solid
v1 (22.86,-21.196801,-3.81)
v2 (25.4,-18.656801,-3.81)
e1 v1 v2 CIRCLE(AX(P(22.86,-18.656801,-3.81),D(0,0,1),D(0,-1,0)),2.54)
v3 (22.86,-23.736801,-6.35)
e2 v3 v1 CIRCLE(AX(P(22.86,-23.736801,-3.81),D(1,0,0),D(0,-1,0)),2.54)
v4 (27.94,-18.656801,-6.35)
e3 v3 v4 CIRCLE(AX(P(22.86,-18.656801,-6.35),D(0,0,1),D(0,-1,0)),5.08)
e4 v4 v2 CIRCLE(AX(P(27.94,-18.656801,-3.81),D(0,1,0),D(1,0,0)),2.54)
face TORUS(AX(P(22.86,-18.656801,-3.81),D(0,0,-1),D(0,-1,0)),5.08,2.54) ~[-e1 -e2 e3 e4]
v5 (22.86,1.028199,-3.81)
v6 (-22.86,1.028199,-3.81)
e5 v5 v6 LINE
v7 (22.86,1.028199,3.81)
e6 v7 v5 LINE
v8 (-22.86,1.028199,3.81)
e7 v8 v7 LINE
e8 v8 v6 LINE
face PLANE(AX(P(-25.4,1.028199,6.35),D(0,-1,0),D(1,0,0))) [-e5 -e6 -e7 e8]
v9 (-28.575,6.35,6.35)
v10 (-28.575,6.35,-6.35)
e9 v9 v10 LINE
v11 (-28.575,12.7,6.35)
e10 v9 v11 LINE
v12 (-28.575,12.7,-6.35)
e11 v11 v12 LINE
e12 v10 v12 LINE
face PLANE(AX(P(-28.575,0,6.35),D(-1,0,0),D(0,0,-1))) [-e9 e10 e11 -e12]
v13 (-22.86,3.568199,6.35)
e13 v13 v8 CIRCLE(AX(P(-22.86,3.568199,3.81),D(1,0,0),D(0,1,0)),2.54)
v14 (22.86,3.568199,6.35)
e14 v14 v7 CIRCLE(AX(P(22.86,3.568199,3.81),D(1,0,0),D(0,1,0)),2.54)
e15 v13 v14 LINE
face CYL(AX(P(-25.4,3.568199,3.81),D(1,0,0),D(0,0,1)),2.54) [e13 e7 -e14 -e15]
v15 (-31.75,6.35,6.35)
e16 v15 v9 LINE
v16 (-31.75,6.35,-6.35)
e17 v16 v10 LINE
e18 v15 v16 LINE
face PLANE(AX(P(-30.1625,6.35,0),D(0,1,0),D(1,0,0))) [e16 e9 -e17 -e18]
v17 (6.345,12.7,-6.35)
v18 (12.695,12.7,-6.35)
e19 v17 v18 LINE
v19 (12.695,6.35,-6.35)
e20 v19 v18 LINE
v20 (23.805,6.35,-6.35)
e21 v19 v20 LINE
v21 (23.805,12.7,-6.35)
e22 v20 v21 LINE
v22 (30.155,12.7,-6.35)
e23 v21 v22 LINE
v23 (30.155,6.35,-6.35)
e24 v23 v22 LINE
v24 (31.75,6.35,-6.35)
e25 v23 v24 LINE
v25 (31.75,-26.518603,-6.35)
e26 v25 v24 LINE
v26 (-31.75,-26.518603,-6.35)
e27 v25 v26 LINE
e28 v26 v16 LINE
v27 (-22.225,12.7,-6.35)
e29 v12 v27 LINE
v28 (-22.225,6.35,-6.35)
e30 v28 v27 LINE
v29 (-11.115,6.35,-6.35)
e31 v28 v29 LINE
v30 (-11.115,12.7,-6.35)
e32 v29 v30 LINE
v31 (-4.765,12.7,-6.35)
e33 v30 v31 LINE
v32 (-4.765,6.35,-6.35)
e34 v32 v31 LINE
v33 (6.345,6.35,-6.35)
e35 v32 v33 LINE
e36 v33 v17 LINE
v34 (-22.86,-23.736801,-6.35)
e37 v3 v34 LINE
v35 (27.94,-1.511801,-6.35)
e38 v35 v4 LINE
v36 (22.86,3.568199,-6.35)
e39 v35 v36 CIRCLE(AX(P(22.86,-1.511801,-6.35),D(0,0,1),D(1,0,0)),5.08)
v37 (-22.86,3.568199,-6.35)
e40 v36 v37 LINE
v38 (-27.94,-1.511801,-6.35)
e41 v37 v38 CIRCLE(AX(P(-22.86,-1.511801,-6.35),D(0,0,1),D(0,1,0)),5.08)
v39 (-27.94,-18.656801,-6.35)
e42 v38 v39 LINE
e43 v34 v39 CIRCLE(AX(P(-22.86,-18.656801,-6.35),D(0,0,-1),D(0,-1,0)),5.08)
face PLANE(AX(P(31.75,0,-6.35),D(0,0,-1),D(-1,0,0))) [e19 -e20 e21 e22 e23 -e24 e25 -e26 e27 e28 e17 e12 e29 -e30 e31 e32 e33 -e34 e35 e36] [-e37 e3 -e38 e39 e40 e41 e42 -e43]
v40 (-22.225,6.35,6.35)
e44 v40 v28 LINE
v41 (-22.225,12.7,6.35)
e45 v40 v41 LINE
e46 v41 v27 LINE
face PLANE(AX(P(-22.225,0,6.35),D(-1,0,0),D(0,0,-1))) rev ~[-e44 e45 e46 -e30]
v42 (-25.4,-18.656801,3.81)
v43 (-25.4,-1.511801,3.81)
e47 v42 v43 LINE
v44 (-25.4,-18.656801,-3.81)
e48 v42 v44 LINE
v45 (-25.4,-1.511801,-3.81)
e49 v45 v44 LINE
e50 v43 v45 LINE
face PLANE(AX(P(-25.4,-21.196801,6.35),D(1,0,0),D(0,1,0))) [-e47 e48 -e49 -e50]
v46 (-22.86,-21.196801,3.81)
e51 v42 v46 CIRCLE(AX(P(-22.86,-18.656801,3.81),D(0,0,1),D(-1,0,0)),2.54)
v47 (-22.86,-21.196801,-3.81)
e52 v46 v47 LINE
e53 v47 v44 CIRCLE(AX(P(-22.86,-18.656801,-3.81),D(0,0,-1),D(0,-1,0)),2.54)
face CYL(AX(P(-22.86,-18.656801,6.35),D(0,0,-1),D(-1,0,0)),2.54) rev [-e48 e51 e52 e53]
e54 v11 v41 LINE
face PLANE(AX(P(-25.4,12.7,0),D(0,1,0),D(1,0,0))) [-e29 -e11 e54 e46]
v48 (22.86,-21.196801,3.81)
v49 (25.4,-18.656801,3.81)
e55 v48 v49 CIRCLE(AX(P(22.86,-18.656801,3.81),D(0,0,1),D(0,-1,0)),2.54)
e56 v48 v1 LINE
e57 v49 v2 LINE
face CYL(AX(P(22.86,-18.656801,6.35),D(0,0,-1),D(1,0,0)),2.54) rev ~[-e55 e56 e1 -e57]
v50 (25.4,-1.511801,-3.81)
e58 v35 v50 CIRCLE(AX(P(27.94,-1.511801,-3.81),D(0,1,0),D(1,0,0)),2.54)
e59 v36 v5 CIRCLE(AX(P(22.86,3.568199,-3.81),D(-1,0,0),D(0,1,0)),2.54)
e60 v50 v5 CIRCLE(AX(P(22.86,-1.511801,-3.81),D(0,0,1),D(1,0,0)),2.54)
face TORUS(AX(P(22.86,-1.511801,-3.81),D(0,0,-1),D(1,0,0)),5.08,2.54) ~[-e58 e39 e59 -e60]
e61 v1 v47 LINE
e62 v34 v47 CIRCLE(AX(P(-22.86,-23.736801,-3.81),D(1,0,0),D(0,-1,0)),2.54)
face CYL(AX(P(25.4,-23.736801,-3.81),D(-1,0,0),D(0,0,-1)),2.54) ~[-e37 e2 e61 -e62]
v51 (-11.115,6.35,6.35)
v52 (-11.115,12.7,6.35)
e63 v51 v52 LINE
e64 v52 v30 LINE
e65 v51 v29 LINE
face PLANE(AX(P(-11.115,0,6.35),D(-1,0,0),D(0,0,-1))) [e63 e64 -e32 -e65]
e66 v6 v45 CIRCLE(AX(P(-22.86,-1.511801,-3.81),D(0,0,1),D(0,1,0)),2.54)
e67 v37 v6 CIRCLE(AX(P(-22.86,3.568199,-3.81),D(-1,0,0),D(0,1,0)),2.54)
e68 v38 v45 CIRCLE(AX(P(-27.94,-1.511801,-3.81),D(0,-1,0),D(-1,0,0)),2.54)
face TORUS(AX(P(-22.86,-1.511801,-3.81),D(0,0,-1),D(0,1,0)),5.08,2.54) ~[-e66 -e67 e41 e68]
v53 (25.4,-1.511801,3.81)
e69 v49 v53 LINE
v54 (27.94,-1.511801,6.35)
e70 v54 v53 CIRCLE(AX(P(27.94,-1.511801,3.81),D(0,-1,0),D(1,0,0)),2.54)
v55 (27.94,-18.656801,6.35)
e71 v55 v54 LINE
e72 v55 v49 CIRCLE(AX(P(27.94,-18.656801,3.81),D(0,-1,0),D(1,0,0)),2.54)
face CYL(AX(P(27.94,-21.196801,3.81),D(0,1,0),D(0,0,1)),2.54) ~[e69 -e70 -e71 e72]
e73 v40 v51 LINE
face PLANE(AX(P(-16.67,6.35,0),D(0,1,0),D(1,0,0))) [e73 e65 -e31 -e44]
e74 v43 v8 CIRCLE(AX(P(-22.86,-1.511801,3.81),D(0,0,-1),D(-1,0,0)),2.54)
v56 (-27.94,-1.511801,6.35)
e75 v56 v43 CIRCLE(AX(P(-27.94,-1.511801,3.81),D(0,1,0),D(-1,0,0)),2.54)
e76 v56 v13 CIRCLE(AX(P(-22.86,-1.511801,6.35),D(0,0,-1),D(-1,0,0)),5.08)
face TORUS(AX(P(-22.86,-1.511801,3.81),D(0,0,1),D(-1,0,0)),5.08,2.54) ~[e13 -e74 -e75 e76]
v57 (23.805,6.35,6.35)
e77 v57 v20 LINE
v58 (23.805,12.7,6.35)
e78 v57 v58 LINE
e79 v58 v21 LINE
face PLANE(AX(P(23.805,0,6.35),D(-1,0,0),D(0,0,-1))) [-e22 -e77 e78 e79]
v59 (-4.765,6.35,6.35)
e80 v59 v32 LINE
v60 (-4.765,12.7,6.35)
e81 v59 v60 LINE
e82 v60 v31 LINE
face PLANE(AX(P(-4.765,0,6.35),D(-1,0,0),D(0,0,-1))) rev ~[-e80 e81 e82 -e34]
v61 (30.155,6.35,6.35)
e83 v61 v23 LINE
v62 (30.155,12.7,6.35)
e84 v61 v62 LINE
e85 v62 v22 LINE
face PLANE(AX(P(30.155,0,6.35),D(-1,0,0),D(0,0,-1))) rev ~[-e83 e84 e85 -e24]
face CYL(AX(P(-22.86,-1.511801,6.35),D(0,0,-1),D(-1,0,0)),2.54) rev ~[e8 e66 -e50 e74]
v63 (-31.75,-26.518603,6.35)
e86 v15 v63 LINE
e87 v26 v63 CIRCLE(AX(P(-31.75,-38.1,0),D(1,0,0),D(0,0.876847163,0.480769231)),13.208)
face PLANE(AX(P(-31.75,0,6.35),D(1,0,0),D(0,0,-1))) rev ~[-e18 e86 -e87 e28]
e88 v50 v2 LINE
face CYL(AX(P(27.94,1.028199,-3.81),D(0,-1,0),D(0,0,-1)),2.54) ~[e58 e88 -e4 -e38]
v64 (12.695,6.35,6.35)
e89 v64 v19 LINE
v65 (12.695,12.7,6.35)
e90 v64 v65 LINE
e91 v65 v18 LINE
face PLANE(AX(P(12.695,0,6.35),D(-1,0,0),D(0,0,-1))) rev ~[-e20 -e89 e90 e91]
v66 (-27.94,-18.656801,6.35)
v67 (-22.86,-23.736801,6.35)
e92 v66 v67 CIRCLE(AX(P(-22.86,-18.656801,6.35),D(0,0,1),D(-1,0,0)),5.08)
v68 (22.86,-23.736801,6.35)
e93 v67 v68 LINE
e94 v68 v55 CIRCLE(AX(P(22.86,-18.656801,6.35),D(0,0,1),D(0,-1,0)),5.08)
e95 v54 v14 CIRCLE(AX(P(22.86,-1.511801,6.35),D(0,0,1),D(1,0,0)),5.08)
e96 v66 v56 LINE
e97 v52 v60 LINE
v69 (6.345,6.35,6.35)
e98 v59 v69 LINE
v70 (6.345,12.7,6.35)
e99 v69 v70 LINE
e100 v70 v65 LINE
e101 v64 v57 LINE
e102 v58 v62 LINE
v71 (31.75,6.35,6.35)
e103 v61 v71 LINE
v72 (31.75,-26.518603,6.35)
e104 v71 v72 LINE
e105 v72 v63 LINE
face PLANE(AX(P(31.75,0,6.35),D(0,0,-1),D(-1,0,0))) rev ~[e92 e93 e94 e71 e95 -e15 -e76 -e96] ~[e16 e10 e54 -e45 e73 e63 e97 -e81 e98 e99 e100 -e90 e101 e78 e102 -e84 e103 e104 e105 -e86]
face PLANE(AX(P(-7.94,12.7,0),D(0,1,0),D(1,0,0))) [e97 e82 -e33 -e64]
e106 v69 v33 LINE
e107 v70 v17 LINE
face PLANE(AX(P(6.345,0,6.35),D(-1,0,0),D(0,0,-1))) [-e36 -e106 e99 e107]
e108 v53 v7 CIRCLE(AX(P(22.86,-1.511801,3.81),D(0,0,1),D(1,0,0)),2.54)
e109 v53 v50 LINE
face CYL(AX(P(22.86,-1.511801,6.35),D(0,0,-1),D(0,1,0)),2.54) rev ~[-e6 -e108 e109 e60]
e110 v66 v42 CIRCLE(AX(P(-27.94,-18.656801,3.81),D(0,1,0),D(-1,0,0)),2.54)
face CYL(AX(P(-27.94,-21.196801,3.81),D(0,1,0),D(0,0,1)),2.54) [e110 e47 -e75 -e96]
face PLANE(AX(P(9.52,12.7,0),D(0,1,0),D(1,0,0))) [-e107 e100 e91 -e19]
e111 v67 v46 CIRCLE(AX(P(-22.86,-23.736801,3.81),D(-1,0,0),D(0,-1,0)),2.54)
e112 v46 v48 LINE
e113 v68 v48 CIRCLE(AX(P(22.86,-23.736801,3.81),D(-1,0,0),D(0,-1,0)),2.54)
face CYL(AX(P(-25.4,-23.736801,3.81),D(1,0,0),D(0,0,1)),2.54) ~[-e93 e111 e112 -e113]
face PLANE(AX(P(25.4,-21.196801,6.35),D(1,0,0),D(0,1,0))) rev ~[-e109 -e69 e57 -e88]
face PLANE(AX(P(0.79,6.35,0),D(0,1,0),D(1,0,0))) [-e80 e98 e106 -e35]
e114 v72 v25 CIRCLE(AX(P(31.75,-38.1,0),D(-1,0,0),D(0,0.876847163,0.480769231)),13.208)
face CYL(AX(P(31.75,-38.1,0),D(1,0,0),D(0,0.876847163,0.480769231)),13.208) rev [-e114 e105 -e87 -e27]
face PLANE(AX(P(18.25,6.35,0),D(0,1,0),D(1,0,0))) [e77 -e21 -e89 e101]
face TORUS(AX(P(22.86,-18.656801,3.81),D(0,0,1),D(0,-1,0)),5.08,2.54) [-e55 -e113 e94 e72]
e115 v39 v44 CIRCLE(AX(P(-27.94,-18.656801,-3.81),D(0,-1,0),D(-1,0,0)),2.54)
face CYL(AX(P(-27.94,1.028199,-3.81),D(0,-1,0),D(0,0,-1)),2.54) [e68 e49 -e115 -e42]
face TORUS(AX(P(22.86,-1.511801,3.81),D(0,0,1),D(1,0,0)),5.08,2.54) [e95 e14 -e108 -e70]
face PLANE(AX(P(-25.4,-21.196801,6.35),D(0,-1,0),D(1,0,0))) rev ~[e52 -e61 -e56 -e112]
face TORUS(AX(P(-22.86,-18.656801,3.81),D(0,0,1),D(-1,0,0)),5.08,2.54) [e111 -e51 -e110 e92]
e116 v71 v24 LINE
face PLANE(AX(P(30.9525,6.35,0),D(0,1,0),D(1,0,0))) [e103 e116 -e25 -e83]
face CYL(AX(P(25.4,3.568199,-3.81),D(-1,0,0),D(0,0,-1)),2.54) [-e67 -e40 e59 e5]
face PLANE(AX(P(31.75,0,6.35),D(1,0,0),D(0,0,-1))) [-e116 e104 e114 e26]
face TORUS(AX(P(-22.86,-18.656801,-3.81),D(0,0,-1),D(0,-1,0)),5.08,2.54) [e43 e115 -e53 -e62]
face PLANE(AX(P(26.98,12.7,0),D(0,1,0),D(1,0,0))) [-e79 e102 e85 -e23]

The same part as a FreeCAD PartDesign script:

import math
import FreeCAD as App
import Part
import Sketcher
from FreeCAD import Vector
Q = App.Units.Quantity


def edges_at(feature, points):
    """Names of the edges that pass closest to the given points."""
    edges = feature.Shape.Edges
    near = lambda p: min(range(len(edges)), key=lambda i: edges[i].distToShape(Part.Vertex(*p))[0])
    return sorted({f"Edge{near(p) + 1}" for p in points})


def add_polygon(sketch, points):
    """Adds a closed chain of lines whose ends are joined by coincident constraints."""
    first, n = sketch.GeometryCount, len(points)
    for a, b in zip(points, points[1:] + points[:1]):
        sketch.addGeometry(Part.LineSegment(App.Vector(*a, 0), App.Vector(*b, 0)), False)
    for i in range(n):
        sketch.addConstraint(Sketcher.Constraint("Coincident", first + i, 2, first + (i + 1) % n, 1))

doc = App.newDocument("Part")
body = doc.addObject("PartDesign::Body", "Body")

# Sketch on XZ plane
sketch1 = body.newObject("Sketcher::SketchObject", "Sketch")
sketch1.AttachmentSupport = (doc.getObject("XZ_Plane"), [""])
sketch1.MapMode = "FlatFace"
add_polygon(sketch1, [(-31.8, -6.3), (-31.8, 6.3), (-28.6, 6.3), (-28.6, -6.3)])  # lines 0-3
sketch1.addConstraint(Sketcher.Constraint("Vertical", 0))
sketch1.addConstraint(Sketcher.Constraint("Horizontal", 1))
sketch1.addConstraint(Sketcher.Constraint("Vertical", 2))
sketch1.addConstraint(Sketcher.Constraint("Horizontal", 3))
sketch1.addConstraint(Sketcher.Constraint("DistanceY", 0, 1, 0, 2, Q("0.5 in")))
sketch1.addConstraint(Sketcher.Constraint("DistanceX", 1, 1, 1, 2, Q("0.125 in")))
sketch1.addConstraint(Sketcher.Constraint("DistanceX", 0, 2, -1, 1, Q("1.25 in")))
sketch1.addConstraint(Sketcher.Constraint("DistanceY", -1, 1, 0, 2, Q("0.25 in")))
pad1 = body.newObject("PartDesign::Pad", "Pad")
pad1.Profile = sketch1
pad1.Length = Q("0.25 in")
pad1.Reversed = True
body2 = doc.addObject("PartDesign::Body", "Body001")

# Sketch on XZ plane
sketch2 = body2.newObject("Sketcher::SketchObject", "Sketch001")
sketch2.AttachmentSupport = (doc.getObject("XZ_Plane001"), [""])
sketch2.MapMode = "FlatFace"
add_polygon(sketch2, [(-22, -6), (-22, 6), (-11, 6), (-11, -6)])  # lines 0-3
sketch2.addConstraint(Sketcher.Constraint("Vertical", 0))
sketch2.addConstraint(Sketcher.Constraint("Horizontal", 1))
sketch2.addConstraint(Sketcher.Constraint("Vertical", 2))
sketch2.addConstraint(Sketcher.Constraint("Horizontal", 3))
sketch2.addConstraint(Sketcher.Constraint("DistanceY", 0, 1, 0, 2, Q("0.5 in")))
sketch2.addConstraint(Sketcher.Constraint("DistanceY", -1, 1, 0, 2, Q("0.25 in")))
sketch2.addConstraint(Sketcher.Constraint("DistanceX", 0, 2, -1, 1, Q("0.875 in")))
sketch2.addConstraint(Sketcher.Constraint("DistanceX", 1, 1, 1, 2, 11.11))
pad2 = body2.newObject("PartDesign::Pad", "Pad001")
pad2.Profile = sketch2
pad2.Length = Q("0.25 in")
pad2.Reversed = True
body3 = doc.addObject("PartDesign::Body", "Body002")

# Sketch on XZ plane
sketch3 = body3.newObject("Sketcher::SketchObject", "Sketch002")
sketch3.AttachmentSupport = (doc.getObject("XZ_Plane002"), [""])
sketch3.MapMode = "FlatFace"
add_polygon(sketch3, [(-5, -6), (-5, 6), (6, 6), (6, -6)])  # lines 0-3
sketch3.addConstraint(Sketcher.Constraint("Vertical", 0))
sketch3.addConstraint(Sketcher.Constraint("Horizontal", 1))
sketch3.addConstraint(Sketcher.Constraint("Vertical", 2))
sketch3.addConstraint(Sketcher.Constraint("Horizontal", 3))
sketch3.addConstraint(Sketcher.Constraint("DistanceY", 0, 1, 0, 2, Q("0.5 in")))
sketch3.addConstraint(Sketcher.Constraint("DistanceY", -1, 1, 0, 2, Q("0.25 in")))
sketch3.addConstraint(Sketcher.Constraint("DistanceX", 1, 1, 1, 2, 11.11))
sketch3.addConstraint(Sketcher.Constraint("DistanceX", 0, 2, -1, 1, 4.765))
pad3 = body3.newObject("PartDesign::Pad", "Pad002")
pad3.Profile = sketch3
pad3.Length = Q("0.25 in")
pad3.Reversed = True
body4 = doc.addObject("PartDesign::Body", "Body003")

# Sketch on XZ plane
sketch4 = body4.newObject("Sketcher::SketchObject", "Sketch003")
sketch4.AttachmentSupport = (doc.getObject("XZ_Plane003"), [""])
sketch4.MapMode = "FlatFace"
add_polygon(sketch4, [(13, -6), (13, 6), (24, 6), (24, -6)])  # lines 0-3
sketch4.addConstraint(Sketcher.Constraint("Vertical", 0))
sketch4.addConstraint(Sketcher.Constraint("Horizontal", 1))
sketch4.addConstraint(Sketcher.Constraint("Vertical", 2))
sketch4.addConstraint(Sketcher.Constraint("Horizontal", 3))
sketch4.addConstraint(Sketcher.Constraint("DistanceY", 0, 1, 0, 2, Q("0.5 in")))
sketch4.addConstraint(Sketcher.Constraint("DistanceY", -1, 1, 0, 2, Q("0.25 in")))
sketch4.addConstraint(Sketcher.Constraint("DistanceX", 1, 1, 1, 2, 11.11))
sketch4.addConstraint(Sketcher.Constraint("DistanceX", -1, 1, 0, 2, 12.695))
pad4 = body4.newObject("PartDesign::Pad", "Pad003")
pad4.Profile = sketch4
pad4.Length = Q("0.25 in")
pad4.Reversed = True
body5 = doc.addObject("PartDesign::Body", "Body004")

# Sketch on XZ plane
sketch5 = body5.newObject("Sketcher::SketchObject", "Sketch004")
sketch5.AttachmentSupport = (doc.getObject("XZ_Plane004"), [""])
sketch5.MapMode = "FlatFace"
add_polygon(sketch5, [(30.2, -6.3), (30.2, 6.3), (31.8, 6.3), (31.8, -6.3)])  # lines 0-3
sketch5.addConstraint(Sketcher.Constraint("Vertical", 0))
sketch5.addConstraint(Sketcher.Constraint("Horizontal", 1))
sketch5.addConstraint(Sketcher.Constraint("Vertical", 2))
sketch5.addConstraint(Sketcher.Constraint("Horizontal", 3))
sketch5.addConstraint(Sketcher.Constraint("DistanceY", 0, 1, 0, 2, Q("0.5 in")))
sketch5.addConstraint(Sketcher.Constraint("DistanceY", -1, 1, 0, 2, Q("0.25 in")))
sketch5.addConstraint(Sketcher.Constraint("DistanceX", -1, 1, 1, 2, Q("1.25 in")))
sketch5.addConstraint(Sketcher.Constraint("DistanceX", 1, 1, 1, 2, 1.595))
pad5 = body5.newObject("PartDesign::Pad", "Pad004")
pad5.Profile = sketch5
pad5.Length = Q("0.25 in")
pad5.Reversed = True
body.AllowCompound = True
doc.recompute()

boolean = body.newObject("PartDesign::Boolean", "Boolean")
boolean.Type = "Fuse"
boolean.addObjects([body2])
doc.recompute()

boolean2 = body.newObject("PartDesign::Boolean", "Boolean001")
boolean2.Type = "Fuse"
boolean2.addObjects([body3])
doc.recompute()

boolean3 = body.newObject("PartDesign::Boolean", "Boolean002")
boolean3.Type = "Fuse"
boolean3.addObjects([body4])
doc.recompute()

boolean4 = body.newObject("PartDesign::Boolean", "Boolean003")
boolean4.Type = "Fuse"
boolean4.addObjects([body5])

# Sketch on XZ plane
sketch6 = body.newObject("Sketcher::SketchObject", "Sketch005")
sketch6.AttachmentSupport = (doc.getObject("XZ_Plane"), [""])
sketch6.MapMode = "FlatFace"
add_polygon(sketch6, [(-29, -6), (-29, 6), (-22, 6), (-22, -6)])  # lines 0-3
add_polygon(sketch6, [(-11, -6), (-11, 6), (-5, 6), (-5, -6)])  # lines 4-7
add_polygon(sketch6, [(6, -6), (6, 6), (13, 6), (13, -6)])  # lines 8-11
add_polygon(sketch6, [(24, -6), (24, 6), (30, 6), (30, -6)])  # lines 12-15
sketch6.addConstraint(Sketcher.Constraint("Vertical", 0))
sketch6.addConstraint(Sketcher.Constraint("Horizontal", 1))
sketch6.addConstraint(Sketcher.Constraint("Vertical", 2))
sketch6.addConstraint(Sketcher.Constraint("Horizontal", 3))
sketch6.addConstraint(Sketcher.Constraint("Vertical", 4))
sketch6.addConstraint(Sketcher.Constraint("Horizontal", 5))
sketch6.addConstraint(Sketcher.Constraint("Vertical", 6))
sketch6.addConstraint(Sketcher.Constraint("Horizontal", 7))
sketch6.addConstraint(Sketcher.Constraint("Vertical", 8))
sketch6.addConstraint(Sketcher.Constraint("Horizontal", 9))
sketch6.addConstraint(Sketcher.Constraint("Vertical", 10))
sketch6.addConstraint(Sketcher.Constraint("Horizontal", 11))
sketch6.addConstraint(Sketcher.Constraint("Vertical", 12))
sketch6.addConstraint(Sketcher.Constraint("Horizontal", 13))
sketch6.addConstraint(Sketcher.Constraint("Vertical", 14))
sketch6.addConstraint(Sketcher.Constraint("Horizontal", 15))
sketch6.addConstraint(Sketcher.Constraint("Horizontal", 1, 2, 4, 2))
sketch6.addConstraint(Sketcher.Constraint("Horizontal", 3, 2, 6, 2))
sketch6.addConstraint(Sketcher.Constraint("Horizontal", 5, 2, 8, 2))
sketch6.addConstraint(Sketcher.Constraint("Horizontal", 7, 2, 10, 2))
sketch6.addConstraint(Sketcher.Constraint("Horizontal", 9, 2, 12, 2))
sketch6.addConstraint(Sketcher.Constraint("Horizontal", 11, 2, 14, 2))
sketch6.addConstraint(Sketcher.Constraint("Equal", 3, 5))
sketch6.addConstraint(Sketcher.Constraint("Equal", 7, 9))
sketch6.addConstraint(Sketcher.Constraint("Equal", 11, 13))
sketch6.addConstraint(Sketcher.Constraint("DistanceY", 0, 1, 0, 2, Q("0.5 in")))
sketch6.addConstraint(Sketcher.Constraint("DistanceX", 1, 1, 1, 2, Q("0.25 in")))
sketch6.addConstraint(Sketcher.Constraint("DistanceY", -1, 1, 0, 2, Q("0.25 in")))
sketch6.addConstraint(Sketcher.Constraint("DistanceX", 0, 2, -1, 1, Q("1.125 in")))
sketch6.addConstraint(Sketcher.Constraint("DistanceX", 4, 2, -1, 1, 11.115))
sketch6.addConstraint(Sketcher.Constraint("DistanceX", -1, 1, 8, 2, 6.345))
sketch6.addConstraint(Sketcher.Constraint("DistanceX", -1, 1, 12, 2, 23.805))
pad6 = body.newObject("PartDesign::Pad", "Pad005")
pad6.Profile = sketch6
pad6.Length = Q("0.5 in")
pad6.Reversed = True

# Sketch on XZ plane
sketch7 = body.newObject("Sketcher::SketchObject", "Sketch006")
sketch7.AttachmentSupport = (doc.getObject("XZ_Plane"), [""])
sketch7.MapMode = "FlatFace"
add_polygon(sketch7, [(32, -6), (32, 6), (-32, 6), (-32, -6)])  # lines 0-3
sketch7.addConstraint(Sketcher.Constraint("Vertical", 0))
sketch7.addConstraint(Sketcher.Constraint("Horizontal", 1))
sketch7.addConstraint(Sketcher.Constraint("Vertical", 2))
sketch7.addConstraint(Sketcher.Constraint("Horizontal", 3))
sketch7.addConstraint(Sketcher.Constraint("Symmetric", 0, 2, 2, 2, -1, 1))
sketch7.addConstraint(Sketcher.Constraint("DistanceX", 1, 2, 1, 1, Q("2.5 in")))
sketch7.addConstraint(Sketcher.Constraint("DistanceY", 0, 1, 0, 2, Q("0.5 in")))
pad7 = body.newObject("PartDesign::Pad", "Pad006")
pad7.Profile = sketch7
pad7.Length = Q("1.5 in")

# Sketch on YZ plane
sketch8 = body.newObject("Sketcher::SketchObject", "Sketch007")
sketch8.AttachmentSupport = (doc.getObject("YZ_Plane"), [""])
sketch8.MapMode = "FlatFace"
sketch8.AttachmentOffset = App.Placement(Vector(0, 0, 1.25 * 25.4), App.Rotation())
sketch8.addGeometry(Part.LineSegment(Vector(-38, -6, 0), Vector(-27, -6, 0)), False)
sketch8.addGeometry(Part.ArcOfCircle(Part.Circle(Vector(-38, 0, 0), Vector(0, 0, 1), 13), math.radians(-29), math.radians(29)), False)
sketch8.addGeometry(Part.LineSegment(Vector(-27, 6, 0), Vector(-38, 6, 0)), False)
sketch8.addGeometry(Part.LineSegment(Vector(-38, 6, 0), Vector(-38, -6, 0)), False)
sketch8.addConstraint(Sketcher.Constraint("Coincident", 0, 2, 1, 1))
sketch8.addConstraint(Sketcher.Constraint("Coincident", 1, 2, 2, 1))
sketch8.addConstraint(Sketcher.Constraint("Coincident", 2, 2, 3, 1))
sketch8.addConstraint(Sketcher.Constraint("Coincident", 3, 2, 0, 1))
sketch8.addConstraint(Sketcher.Constraint("Horizontal", 0))
sketch8.addConstraint(Sketcher.Constraint("Horizontal", 2))
sketch8.addConstraint(Sketcher.Constraint("Vertical", 3))
sketch8.addConstraint(Sketcher.Constraint("Symmetric", 0, 2, 1, 2, -1))
sketch8.addConstraint(Sketcher.Constraint("Vertical", 1, 3, 2, 2))
sketch8.addConstraint(Sketcher.Constraint("Radius", 1, Q("0.52 in")))
sketch8.addConstraint(Sketcher.Constraint("DistanceY", 3, 2, 3, 1, Q("0.5 in")))
sketch8.addConstraint(Sketcher.Constraint("DistanceX", 1, 3, -1, 1, Q("1.5 in")))
pocket1 = body.newObject("PartDesign::Pocket", "Pocket")
pocket1.Profile = sketch8
pocket1.Type = "ThroughAll"

# Sketch on XY plane
sketch9 = body.newObject("Sketcher::SketchObject", "Sketch008")
sketch9.AttachmentSupport = (doc.getObject("XY_Plane"), [""])
sketch9.MapMode = "FlatFace"
sketch9.AttachmentOffset = App.Placement(Vector(0, 0, 0.25 * 25.4), App.Rotation())
add_polygon(sketch9, [(-25, 1), (-25, -21), (25, -21), (25, 1)])  # lines 0-3
sketch9.addConstraint(Sketcher.Constraint("Vertical", 0))
sketch9.addConstraint(Sketcher.Constraint("Horizontal", 1))
sketch9.addConstraint(Sketcher.Constraint("Vertical", 2))
sketch9.addConstraint(Sketcher.Constraint("Horizontal", 3))
sketch9.addConstraint(Sketcher.Constraint("DistanceX", 1, 1, 1, 2, Q("2 in")))
sketch9.addConstraint(Sketcher.Constraint("DistanceX", 0, 2, -1, 1, Q("1 in")))
sketch9.addConstraint(Sketcher.Constraint("DistanceY", 0, 2, 0, 1, Q("0.875 in")))
sketch9.addConstraint(Sketcher.Constraint("DistanceY", 0, 2, -1, 1, 21.196801))
pocket2 = body.newObject("PartDesign::Pocket", "Pocket001")
pocket2.Profile = sketch9
pocket2.Type = "ThroughAll"
doc.recompute()

fillet = body.newObject("PartDesign::Fillet", "Fillet")
fillet.Base = (pocket2, edges_at(pocket2, [
    (0, -21.197, -6.35),
    (25.4, -10.084, -6.35),
    (0, 1.028, -6.35),
    (-25.4, -10.084, -6.35),
    (-25.4, -21.197, 0),
    (-25.4, 1.028, 0),
    (25.4, 1.028, 0),
    (25.4, -21.197, 0),
    (-25.4, -10.084, 6.35),
    (0, -21.197, 6.35),
    (25.4, -10.084, 6.35),
    (0, 1.028, 6.35),
]))
fillet.Radius = Q("0.1 in")

doc.recompute()
